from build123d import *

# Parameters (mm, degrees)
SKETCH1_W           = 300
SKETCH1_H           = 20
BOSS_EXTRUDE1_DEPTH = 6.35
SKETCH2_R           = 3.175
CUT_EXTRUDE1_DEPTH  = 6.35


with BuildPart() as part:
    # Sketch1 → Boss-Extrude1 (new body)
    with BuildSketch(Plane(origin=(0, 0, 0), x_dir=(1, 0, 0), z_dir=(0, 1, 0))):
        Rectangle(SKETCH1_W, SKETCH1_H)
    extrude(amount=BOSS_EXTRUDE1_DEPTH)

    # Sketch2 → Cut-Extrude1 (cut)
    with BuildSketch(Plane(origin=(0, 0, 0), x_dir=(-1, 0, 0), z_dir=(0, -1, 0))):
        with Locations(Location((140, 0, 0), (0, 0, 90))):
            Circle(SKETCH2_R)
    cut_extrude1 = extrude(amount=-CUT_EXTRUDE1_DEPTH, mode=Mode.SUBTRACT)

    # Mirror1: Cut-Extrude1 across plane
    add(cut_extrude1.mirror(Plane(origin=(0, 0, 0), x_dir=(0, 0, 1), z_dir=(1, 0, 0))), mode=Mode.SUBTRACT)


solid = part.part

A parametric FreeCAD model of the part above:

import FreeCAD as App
import Part
import Sketcher

V = App.Vector


def add_polygon(sketch, points):
    """Adds a closed chain of lines whose ends are joined by coincident constraints."""
    first, n = sketch.GeometryCount, len(points)
    for a, b in zip(points, points[1:] + points[:1]):
        sketch.addGeometry(Part.LineSegment(App.Vector(*a, 0), App.Vector(*b, 0)), False)
    for i in range(n):
        sketch.addConstraint(Sketcher.Constraint("Coincident", first + i, 2, first + (i + 1) % n, 1))

doc = App.newDocument("Part")
body = doc.addObject("PartDesign::Body", "Body")

# Sketch on XZ plane
sketch1 = body.newObject("Sketcher::SketchObject", "Sketch")
sketch1.AttachmentSupport = (doc.getObject("XZ_Plane"), [""])
sketch1.MapMode = "FlatFace"
add_polygon(sketch1, [(-150, -10), (-150, 10), (150, 10), (150, -10)])  # lines 0-3
sketch1.addConstraint(Sketcher.Constraint("Vertical", 0))
sketch1.addConstraint(Sketcher.Constraint("Horizontal", 1))
sketch1.addConstraint(Sketcher.Constraint("Vertical", 2))
sketch1.addConstraint(Sketcher.Constraint("Horizontal", 3))
sketch1.addConstraint(Sketcher.Constraint("Symmetric", 0, 2, 2, 2, -1, 1))
sketch1.addConstraint(Sketcher.Constraint("DistanceX", 1, 1, 1, 2, 300.0))
sketch1.addConstraint(Sketcher.Constraint("DistanceY", 0, 1, 0, 2, 20.0))
pad1 = body.newObject("PartDesign::Pad", "Pad")
pad1.Profile = sketch1
pad1.Length = 6.35
pad1.Reversed = True

# Sketch on XZ plane
sketch2 = body.newObject("Sketcher::SketchObject", "Sketch001")
sketch2.AttachmentSupport = (doc.getObject("XZ_Plane"), [""])
sketch2.MapMode = "FlatFace"
sketch2.addGeometry(Part.Circle(V(-140, 0, 0), V(0, 0, 1), 3.2), False)
sketch2.addConstraint(Sketcher.Constraint("PointOnObject", 0, 3, -1))
sketch2.addConstraint(Sketcher.Constraint("Diameter", 0, 6.35))
sketch2.addConstraint(Sketcher.Constraint("DistanceX", 0, 3, -1, 1, 140.0))
pocket1 = body.newObject("PartDesign::Pocket", "Pocket")
pocket1.Profile = sketch2
pocket1.Length = 6.35
doc.recompute()

mirrored = body.newObject("PartDesign::Mirrored", "Mirrored")
mirrored.Originals = [pocket1]
mirrored.MirrorPlane = (doc.getObject("YZ_Plane"), [""])
body.Tip = mirrored

doc.recompute()
